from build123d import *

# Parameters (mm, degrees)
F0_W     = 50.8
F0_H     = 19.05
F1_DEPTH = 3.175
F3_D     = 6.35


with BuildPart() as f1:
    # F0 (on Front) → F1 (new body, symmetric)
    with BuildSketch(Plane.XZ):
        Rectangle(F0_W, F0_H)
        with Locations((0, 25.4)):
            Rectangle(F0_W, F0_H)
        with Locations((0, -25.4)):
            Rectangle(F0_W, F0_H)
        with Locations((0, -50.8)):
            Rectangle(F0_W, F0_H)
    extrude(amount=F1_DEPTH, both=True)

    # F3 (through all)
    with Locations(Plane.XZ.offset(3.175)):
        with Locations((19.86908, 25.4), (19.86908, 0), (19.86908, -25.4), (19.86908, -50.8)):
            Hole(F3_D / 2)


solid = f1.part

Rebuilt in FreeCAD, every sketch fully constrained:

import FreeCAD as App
import Part
import Sketcher
Q = App.Units.Quantity

doc = App.newDocument("Part")
body = doc.addObject("PartDesign::Body", "Body")
body.AllowCompound = True

# Sketch on XZ plane
sketch1 = body.newObject("Sketcher::SketchObject", "Sketch")
sketch1.AttachmentSupport = (doc.getObject("XZ_Plane"), [""])
sketch1.MapMode = "FlatFace"
sketch1.addGeometry([
    Part.LineSegment(App.Vector(-25, 10, 0), App.Vector(-25, -10, 0)),  # 0
    Part.LineSegment(App.Vector(-25, -10, 0), App.Vector(25, -10, 0)),  # 1
    Part.LineSegment(App.Vector(25, -10, 0), App.Vector(25, 10, 0)),  # 2
    Part.LineSegment(App.Vector(25, 10, 0), App.Vector(-25, 10, 0)),  # 3
    Part.LineSegment(App.Vector(-25, 35, 0), App.Vector(-25, 16, 0)),  # 4
    Part.LineSegment(App.Vector(-25, 16, 0), App.Vector(25, 16, 0)),  # 5
    Part.LineSegment(App.Vector(25, 16, 0), App.Vector(25, 35, 0)),  # 6
    Part.LineSegment(App.Vector(25, 35, 0), App.Vector(-25, 35, 0)),  # 7
    Part.LineSegment(App.Vector(-25, -16, 0), App.Vector(-25, -35, 0)),  # 8
    Part.LineSegment(App.Vector(-25, -35, 0), App.Vector(25, -35, 0)),  # 9
    Part.LineSegment(App.Vector(25, -35, 0), App.Vector(25, -16, 0)),  # 10
    Part.LineSegment(App.Vector(25, -16, 0), App.Vector(-25, -16, 0)),  # 11
    Part.LineSegment(App.Vector(-25, -41, 0), App.Vector(-25, -60, 0)),  # 12
    Part.LineSegment(App.Vector(-25, -60, 0), App.Vector(25, -60, 0)),  # 13
    Part.LineSegment(App.Vector(25, -60, 0), App.Vector(25, -41, 0)),  # 14
    Part.LineSegment(App.Vector(25, -41, 0), App.Vector(-25, -41, 0)),  # 15
], False)
sketch1.addConstraint([
    Sketcher.Constraint("Coincident", 0, 2, 1, 1),
    Sketcher.Constraint("Coincident", 1, 2, 2, 1),
    Sketcher.Constraint("Coincident", 2, 2, 3, 1),
    Sketcher.Constraint("Coincident", 3, 2, 0, 1),
    Sketcher.Constraint("Coincident", 4, 2, 5, 1),
    Sketcher.Constraint("Coincident", 5, 2, 6, 1),
    Sketcher.Constraint("Coincident", 6, 2, 7, 1),
    Sketcher.Constraint("Coincident", 7, 2, 4, 1),
    Sketcher.Constraint("Coincident", 8, 2, 9, 1),
    Sketcher.Constraint("Coincident", 9, 2, 10, 1),
    Sketcher.Constraint("Coincident", 10, 2, 11, 1),
    Sketcher.Constraint("Coincident", 11, 2, 8, 1),
    Sketcher.Constraint("Coincident", 12, 2, 13, 1),
    Sketcher.Constraint("Coincident", 13, 2, 14, 1),
    Sketcher.Constraint("Coincident", 14, 2, 15, 1),
    Sketcher.Constraint("Coincident", 15, 2, 12, 1),
    Sketcher.Constraint("Vertical", 0),
    Sketcher.Constraint("Horizontal", 1),
    Sketcher.Constraint("Vertical", 2),
    Sketcher.Constraint("Horizontal", 3),
    Sketcher.Constraint("Vertical", 4),
    Sketcher.Constraint("Horizontal", 5),
    Sketcher.Constraint("Vertical", 6),
    Sketcher.Constraint("Horizontal", 7),
    Sketcher.Constraint("Vertical", 8),
    Sketcher.Constraint("Horizontal", 9),
    Sketcher.Constraint("Vertical", 10),
    Sketcher.Constraint("Horizontal", 11),
    Sketcher.Constraint("Vertical", 12),
    Sketcher.Constraint("Horizontal", 13),
    Sketcher.Constraint("Vertical", 14),
    Sketcher.Constraint("Horizontal", 15),
    Sketcher.Constraint("Symmetric", 0, 2, 2, 2, -1, 1),
    Sketcher.Constraint("Symmetric", 6, 2, 8, 2, -1, 1),
    Sketcher.Constraint("Symmetric", 4, 2, 10, 2, -1, 1),
    Sketcher.Constraint("Vertical", 3, 2, 4, 2),
    Sketcher.Constraint("Vertical", 2, 2, 5, 2),
    Sketcher.Constraint("Vertical", 11, 2, 12, 2),
    Sketcher.Constraint("Vertical", 10, 2, 13, 2),
    Sketcher.Constraint("Equal", 2, 4),
    Sketcher.Constraint("Equal", 10, 12),
    Sketcher.Constraint("DistanceX", 1, 1, 1, 2, Q("2 in")),
    Sketcher.Constraint("DistanceY", 0, 2, 4, 2, Q("1 in")),
    Sketcher.Constraint("DistanceY", 12, 2, 8, 2, Q("1 in")),
    Sketcher.Constraint("DistanceY", 0, 2, 0, 1, Q("0.75 in")),
])
pad1 = body.newObject("PartDesign::Pad", "Pad")
pad1.Profile = sketch1
pad1.Length = Q("0.25 in")
pad1.Midplane = True

# Sketch on XZ plane
sketch2 = body.newObject("Sketcher::SketchObject", "Sketch001")
sketch2.AttachmentSupport = (doc.getObject("XZ_Plane"), [""])
sketch2.MapMode = "FlatFace"
sketch2.AttachmentOffset = App.Placement(App.Vector(0, 0, 0.125 * 25.4), App.Rotation())
sketch2.addGeometry([
    Part.Circle(App.Vector(19.9, 25.4, 0), App.Vector(0, 0, 1), 3.2),
    Part.Circle(App.Vector(19.9, 0, 0), App.Vector(0, 0, 1), 3.2),
    Part.Circle(App.Vector(19.9, -25.4, 0), App.Vector(0, 0, 1), 3.2),
    Part.Circle(App.Vector(19.9, -50.8, 0), App.Vector(0, 0, 1), 3.2),
], False)
sketch2.addConstraint([
    Sketcher.Constraint("Equal", 0, 1),
    Sketcher.Constraint("Equal", 1, 2),
    Sketcher.Constraint("Equal", 2, 3),
    Sketcher.Constraint("Symmetric", 0, 3, 2, 3, -1),
    Sketcher.Constraint("PointOnObject", 1, 3, -1),
    Sketcher.Constraint("Vertical", 0, 3, 1, 3),
    Sketcher.Constraint("Vertical", 2, 3, 3, 3),
    Sketcher.Constraint("Diameter", 0, Q("0.25 in")),
    Sketcher.Constraint("DistanceY", -1, 1, 0, 3, Q("1 in")),
    Sketcher.Constraint("DistanceY", 3, 3, -1, 1, Q("2 in")),
    Sketcher.Constraint("DistanceX", -1, 1, 0, 3, Q("19.86908 mm")),
])
doc.recompute()
hole = body.newObject("PartDesign::Hole", "Hole")
hole.Profile = sketch2
hole.ThreadType = "None"
hole.Diameter = Q("0.25 in")
hole.DepthType = "ThroughAll"

doc.recompute()
